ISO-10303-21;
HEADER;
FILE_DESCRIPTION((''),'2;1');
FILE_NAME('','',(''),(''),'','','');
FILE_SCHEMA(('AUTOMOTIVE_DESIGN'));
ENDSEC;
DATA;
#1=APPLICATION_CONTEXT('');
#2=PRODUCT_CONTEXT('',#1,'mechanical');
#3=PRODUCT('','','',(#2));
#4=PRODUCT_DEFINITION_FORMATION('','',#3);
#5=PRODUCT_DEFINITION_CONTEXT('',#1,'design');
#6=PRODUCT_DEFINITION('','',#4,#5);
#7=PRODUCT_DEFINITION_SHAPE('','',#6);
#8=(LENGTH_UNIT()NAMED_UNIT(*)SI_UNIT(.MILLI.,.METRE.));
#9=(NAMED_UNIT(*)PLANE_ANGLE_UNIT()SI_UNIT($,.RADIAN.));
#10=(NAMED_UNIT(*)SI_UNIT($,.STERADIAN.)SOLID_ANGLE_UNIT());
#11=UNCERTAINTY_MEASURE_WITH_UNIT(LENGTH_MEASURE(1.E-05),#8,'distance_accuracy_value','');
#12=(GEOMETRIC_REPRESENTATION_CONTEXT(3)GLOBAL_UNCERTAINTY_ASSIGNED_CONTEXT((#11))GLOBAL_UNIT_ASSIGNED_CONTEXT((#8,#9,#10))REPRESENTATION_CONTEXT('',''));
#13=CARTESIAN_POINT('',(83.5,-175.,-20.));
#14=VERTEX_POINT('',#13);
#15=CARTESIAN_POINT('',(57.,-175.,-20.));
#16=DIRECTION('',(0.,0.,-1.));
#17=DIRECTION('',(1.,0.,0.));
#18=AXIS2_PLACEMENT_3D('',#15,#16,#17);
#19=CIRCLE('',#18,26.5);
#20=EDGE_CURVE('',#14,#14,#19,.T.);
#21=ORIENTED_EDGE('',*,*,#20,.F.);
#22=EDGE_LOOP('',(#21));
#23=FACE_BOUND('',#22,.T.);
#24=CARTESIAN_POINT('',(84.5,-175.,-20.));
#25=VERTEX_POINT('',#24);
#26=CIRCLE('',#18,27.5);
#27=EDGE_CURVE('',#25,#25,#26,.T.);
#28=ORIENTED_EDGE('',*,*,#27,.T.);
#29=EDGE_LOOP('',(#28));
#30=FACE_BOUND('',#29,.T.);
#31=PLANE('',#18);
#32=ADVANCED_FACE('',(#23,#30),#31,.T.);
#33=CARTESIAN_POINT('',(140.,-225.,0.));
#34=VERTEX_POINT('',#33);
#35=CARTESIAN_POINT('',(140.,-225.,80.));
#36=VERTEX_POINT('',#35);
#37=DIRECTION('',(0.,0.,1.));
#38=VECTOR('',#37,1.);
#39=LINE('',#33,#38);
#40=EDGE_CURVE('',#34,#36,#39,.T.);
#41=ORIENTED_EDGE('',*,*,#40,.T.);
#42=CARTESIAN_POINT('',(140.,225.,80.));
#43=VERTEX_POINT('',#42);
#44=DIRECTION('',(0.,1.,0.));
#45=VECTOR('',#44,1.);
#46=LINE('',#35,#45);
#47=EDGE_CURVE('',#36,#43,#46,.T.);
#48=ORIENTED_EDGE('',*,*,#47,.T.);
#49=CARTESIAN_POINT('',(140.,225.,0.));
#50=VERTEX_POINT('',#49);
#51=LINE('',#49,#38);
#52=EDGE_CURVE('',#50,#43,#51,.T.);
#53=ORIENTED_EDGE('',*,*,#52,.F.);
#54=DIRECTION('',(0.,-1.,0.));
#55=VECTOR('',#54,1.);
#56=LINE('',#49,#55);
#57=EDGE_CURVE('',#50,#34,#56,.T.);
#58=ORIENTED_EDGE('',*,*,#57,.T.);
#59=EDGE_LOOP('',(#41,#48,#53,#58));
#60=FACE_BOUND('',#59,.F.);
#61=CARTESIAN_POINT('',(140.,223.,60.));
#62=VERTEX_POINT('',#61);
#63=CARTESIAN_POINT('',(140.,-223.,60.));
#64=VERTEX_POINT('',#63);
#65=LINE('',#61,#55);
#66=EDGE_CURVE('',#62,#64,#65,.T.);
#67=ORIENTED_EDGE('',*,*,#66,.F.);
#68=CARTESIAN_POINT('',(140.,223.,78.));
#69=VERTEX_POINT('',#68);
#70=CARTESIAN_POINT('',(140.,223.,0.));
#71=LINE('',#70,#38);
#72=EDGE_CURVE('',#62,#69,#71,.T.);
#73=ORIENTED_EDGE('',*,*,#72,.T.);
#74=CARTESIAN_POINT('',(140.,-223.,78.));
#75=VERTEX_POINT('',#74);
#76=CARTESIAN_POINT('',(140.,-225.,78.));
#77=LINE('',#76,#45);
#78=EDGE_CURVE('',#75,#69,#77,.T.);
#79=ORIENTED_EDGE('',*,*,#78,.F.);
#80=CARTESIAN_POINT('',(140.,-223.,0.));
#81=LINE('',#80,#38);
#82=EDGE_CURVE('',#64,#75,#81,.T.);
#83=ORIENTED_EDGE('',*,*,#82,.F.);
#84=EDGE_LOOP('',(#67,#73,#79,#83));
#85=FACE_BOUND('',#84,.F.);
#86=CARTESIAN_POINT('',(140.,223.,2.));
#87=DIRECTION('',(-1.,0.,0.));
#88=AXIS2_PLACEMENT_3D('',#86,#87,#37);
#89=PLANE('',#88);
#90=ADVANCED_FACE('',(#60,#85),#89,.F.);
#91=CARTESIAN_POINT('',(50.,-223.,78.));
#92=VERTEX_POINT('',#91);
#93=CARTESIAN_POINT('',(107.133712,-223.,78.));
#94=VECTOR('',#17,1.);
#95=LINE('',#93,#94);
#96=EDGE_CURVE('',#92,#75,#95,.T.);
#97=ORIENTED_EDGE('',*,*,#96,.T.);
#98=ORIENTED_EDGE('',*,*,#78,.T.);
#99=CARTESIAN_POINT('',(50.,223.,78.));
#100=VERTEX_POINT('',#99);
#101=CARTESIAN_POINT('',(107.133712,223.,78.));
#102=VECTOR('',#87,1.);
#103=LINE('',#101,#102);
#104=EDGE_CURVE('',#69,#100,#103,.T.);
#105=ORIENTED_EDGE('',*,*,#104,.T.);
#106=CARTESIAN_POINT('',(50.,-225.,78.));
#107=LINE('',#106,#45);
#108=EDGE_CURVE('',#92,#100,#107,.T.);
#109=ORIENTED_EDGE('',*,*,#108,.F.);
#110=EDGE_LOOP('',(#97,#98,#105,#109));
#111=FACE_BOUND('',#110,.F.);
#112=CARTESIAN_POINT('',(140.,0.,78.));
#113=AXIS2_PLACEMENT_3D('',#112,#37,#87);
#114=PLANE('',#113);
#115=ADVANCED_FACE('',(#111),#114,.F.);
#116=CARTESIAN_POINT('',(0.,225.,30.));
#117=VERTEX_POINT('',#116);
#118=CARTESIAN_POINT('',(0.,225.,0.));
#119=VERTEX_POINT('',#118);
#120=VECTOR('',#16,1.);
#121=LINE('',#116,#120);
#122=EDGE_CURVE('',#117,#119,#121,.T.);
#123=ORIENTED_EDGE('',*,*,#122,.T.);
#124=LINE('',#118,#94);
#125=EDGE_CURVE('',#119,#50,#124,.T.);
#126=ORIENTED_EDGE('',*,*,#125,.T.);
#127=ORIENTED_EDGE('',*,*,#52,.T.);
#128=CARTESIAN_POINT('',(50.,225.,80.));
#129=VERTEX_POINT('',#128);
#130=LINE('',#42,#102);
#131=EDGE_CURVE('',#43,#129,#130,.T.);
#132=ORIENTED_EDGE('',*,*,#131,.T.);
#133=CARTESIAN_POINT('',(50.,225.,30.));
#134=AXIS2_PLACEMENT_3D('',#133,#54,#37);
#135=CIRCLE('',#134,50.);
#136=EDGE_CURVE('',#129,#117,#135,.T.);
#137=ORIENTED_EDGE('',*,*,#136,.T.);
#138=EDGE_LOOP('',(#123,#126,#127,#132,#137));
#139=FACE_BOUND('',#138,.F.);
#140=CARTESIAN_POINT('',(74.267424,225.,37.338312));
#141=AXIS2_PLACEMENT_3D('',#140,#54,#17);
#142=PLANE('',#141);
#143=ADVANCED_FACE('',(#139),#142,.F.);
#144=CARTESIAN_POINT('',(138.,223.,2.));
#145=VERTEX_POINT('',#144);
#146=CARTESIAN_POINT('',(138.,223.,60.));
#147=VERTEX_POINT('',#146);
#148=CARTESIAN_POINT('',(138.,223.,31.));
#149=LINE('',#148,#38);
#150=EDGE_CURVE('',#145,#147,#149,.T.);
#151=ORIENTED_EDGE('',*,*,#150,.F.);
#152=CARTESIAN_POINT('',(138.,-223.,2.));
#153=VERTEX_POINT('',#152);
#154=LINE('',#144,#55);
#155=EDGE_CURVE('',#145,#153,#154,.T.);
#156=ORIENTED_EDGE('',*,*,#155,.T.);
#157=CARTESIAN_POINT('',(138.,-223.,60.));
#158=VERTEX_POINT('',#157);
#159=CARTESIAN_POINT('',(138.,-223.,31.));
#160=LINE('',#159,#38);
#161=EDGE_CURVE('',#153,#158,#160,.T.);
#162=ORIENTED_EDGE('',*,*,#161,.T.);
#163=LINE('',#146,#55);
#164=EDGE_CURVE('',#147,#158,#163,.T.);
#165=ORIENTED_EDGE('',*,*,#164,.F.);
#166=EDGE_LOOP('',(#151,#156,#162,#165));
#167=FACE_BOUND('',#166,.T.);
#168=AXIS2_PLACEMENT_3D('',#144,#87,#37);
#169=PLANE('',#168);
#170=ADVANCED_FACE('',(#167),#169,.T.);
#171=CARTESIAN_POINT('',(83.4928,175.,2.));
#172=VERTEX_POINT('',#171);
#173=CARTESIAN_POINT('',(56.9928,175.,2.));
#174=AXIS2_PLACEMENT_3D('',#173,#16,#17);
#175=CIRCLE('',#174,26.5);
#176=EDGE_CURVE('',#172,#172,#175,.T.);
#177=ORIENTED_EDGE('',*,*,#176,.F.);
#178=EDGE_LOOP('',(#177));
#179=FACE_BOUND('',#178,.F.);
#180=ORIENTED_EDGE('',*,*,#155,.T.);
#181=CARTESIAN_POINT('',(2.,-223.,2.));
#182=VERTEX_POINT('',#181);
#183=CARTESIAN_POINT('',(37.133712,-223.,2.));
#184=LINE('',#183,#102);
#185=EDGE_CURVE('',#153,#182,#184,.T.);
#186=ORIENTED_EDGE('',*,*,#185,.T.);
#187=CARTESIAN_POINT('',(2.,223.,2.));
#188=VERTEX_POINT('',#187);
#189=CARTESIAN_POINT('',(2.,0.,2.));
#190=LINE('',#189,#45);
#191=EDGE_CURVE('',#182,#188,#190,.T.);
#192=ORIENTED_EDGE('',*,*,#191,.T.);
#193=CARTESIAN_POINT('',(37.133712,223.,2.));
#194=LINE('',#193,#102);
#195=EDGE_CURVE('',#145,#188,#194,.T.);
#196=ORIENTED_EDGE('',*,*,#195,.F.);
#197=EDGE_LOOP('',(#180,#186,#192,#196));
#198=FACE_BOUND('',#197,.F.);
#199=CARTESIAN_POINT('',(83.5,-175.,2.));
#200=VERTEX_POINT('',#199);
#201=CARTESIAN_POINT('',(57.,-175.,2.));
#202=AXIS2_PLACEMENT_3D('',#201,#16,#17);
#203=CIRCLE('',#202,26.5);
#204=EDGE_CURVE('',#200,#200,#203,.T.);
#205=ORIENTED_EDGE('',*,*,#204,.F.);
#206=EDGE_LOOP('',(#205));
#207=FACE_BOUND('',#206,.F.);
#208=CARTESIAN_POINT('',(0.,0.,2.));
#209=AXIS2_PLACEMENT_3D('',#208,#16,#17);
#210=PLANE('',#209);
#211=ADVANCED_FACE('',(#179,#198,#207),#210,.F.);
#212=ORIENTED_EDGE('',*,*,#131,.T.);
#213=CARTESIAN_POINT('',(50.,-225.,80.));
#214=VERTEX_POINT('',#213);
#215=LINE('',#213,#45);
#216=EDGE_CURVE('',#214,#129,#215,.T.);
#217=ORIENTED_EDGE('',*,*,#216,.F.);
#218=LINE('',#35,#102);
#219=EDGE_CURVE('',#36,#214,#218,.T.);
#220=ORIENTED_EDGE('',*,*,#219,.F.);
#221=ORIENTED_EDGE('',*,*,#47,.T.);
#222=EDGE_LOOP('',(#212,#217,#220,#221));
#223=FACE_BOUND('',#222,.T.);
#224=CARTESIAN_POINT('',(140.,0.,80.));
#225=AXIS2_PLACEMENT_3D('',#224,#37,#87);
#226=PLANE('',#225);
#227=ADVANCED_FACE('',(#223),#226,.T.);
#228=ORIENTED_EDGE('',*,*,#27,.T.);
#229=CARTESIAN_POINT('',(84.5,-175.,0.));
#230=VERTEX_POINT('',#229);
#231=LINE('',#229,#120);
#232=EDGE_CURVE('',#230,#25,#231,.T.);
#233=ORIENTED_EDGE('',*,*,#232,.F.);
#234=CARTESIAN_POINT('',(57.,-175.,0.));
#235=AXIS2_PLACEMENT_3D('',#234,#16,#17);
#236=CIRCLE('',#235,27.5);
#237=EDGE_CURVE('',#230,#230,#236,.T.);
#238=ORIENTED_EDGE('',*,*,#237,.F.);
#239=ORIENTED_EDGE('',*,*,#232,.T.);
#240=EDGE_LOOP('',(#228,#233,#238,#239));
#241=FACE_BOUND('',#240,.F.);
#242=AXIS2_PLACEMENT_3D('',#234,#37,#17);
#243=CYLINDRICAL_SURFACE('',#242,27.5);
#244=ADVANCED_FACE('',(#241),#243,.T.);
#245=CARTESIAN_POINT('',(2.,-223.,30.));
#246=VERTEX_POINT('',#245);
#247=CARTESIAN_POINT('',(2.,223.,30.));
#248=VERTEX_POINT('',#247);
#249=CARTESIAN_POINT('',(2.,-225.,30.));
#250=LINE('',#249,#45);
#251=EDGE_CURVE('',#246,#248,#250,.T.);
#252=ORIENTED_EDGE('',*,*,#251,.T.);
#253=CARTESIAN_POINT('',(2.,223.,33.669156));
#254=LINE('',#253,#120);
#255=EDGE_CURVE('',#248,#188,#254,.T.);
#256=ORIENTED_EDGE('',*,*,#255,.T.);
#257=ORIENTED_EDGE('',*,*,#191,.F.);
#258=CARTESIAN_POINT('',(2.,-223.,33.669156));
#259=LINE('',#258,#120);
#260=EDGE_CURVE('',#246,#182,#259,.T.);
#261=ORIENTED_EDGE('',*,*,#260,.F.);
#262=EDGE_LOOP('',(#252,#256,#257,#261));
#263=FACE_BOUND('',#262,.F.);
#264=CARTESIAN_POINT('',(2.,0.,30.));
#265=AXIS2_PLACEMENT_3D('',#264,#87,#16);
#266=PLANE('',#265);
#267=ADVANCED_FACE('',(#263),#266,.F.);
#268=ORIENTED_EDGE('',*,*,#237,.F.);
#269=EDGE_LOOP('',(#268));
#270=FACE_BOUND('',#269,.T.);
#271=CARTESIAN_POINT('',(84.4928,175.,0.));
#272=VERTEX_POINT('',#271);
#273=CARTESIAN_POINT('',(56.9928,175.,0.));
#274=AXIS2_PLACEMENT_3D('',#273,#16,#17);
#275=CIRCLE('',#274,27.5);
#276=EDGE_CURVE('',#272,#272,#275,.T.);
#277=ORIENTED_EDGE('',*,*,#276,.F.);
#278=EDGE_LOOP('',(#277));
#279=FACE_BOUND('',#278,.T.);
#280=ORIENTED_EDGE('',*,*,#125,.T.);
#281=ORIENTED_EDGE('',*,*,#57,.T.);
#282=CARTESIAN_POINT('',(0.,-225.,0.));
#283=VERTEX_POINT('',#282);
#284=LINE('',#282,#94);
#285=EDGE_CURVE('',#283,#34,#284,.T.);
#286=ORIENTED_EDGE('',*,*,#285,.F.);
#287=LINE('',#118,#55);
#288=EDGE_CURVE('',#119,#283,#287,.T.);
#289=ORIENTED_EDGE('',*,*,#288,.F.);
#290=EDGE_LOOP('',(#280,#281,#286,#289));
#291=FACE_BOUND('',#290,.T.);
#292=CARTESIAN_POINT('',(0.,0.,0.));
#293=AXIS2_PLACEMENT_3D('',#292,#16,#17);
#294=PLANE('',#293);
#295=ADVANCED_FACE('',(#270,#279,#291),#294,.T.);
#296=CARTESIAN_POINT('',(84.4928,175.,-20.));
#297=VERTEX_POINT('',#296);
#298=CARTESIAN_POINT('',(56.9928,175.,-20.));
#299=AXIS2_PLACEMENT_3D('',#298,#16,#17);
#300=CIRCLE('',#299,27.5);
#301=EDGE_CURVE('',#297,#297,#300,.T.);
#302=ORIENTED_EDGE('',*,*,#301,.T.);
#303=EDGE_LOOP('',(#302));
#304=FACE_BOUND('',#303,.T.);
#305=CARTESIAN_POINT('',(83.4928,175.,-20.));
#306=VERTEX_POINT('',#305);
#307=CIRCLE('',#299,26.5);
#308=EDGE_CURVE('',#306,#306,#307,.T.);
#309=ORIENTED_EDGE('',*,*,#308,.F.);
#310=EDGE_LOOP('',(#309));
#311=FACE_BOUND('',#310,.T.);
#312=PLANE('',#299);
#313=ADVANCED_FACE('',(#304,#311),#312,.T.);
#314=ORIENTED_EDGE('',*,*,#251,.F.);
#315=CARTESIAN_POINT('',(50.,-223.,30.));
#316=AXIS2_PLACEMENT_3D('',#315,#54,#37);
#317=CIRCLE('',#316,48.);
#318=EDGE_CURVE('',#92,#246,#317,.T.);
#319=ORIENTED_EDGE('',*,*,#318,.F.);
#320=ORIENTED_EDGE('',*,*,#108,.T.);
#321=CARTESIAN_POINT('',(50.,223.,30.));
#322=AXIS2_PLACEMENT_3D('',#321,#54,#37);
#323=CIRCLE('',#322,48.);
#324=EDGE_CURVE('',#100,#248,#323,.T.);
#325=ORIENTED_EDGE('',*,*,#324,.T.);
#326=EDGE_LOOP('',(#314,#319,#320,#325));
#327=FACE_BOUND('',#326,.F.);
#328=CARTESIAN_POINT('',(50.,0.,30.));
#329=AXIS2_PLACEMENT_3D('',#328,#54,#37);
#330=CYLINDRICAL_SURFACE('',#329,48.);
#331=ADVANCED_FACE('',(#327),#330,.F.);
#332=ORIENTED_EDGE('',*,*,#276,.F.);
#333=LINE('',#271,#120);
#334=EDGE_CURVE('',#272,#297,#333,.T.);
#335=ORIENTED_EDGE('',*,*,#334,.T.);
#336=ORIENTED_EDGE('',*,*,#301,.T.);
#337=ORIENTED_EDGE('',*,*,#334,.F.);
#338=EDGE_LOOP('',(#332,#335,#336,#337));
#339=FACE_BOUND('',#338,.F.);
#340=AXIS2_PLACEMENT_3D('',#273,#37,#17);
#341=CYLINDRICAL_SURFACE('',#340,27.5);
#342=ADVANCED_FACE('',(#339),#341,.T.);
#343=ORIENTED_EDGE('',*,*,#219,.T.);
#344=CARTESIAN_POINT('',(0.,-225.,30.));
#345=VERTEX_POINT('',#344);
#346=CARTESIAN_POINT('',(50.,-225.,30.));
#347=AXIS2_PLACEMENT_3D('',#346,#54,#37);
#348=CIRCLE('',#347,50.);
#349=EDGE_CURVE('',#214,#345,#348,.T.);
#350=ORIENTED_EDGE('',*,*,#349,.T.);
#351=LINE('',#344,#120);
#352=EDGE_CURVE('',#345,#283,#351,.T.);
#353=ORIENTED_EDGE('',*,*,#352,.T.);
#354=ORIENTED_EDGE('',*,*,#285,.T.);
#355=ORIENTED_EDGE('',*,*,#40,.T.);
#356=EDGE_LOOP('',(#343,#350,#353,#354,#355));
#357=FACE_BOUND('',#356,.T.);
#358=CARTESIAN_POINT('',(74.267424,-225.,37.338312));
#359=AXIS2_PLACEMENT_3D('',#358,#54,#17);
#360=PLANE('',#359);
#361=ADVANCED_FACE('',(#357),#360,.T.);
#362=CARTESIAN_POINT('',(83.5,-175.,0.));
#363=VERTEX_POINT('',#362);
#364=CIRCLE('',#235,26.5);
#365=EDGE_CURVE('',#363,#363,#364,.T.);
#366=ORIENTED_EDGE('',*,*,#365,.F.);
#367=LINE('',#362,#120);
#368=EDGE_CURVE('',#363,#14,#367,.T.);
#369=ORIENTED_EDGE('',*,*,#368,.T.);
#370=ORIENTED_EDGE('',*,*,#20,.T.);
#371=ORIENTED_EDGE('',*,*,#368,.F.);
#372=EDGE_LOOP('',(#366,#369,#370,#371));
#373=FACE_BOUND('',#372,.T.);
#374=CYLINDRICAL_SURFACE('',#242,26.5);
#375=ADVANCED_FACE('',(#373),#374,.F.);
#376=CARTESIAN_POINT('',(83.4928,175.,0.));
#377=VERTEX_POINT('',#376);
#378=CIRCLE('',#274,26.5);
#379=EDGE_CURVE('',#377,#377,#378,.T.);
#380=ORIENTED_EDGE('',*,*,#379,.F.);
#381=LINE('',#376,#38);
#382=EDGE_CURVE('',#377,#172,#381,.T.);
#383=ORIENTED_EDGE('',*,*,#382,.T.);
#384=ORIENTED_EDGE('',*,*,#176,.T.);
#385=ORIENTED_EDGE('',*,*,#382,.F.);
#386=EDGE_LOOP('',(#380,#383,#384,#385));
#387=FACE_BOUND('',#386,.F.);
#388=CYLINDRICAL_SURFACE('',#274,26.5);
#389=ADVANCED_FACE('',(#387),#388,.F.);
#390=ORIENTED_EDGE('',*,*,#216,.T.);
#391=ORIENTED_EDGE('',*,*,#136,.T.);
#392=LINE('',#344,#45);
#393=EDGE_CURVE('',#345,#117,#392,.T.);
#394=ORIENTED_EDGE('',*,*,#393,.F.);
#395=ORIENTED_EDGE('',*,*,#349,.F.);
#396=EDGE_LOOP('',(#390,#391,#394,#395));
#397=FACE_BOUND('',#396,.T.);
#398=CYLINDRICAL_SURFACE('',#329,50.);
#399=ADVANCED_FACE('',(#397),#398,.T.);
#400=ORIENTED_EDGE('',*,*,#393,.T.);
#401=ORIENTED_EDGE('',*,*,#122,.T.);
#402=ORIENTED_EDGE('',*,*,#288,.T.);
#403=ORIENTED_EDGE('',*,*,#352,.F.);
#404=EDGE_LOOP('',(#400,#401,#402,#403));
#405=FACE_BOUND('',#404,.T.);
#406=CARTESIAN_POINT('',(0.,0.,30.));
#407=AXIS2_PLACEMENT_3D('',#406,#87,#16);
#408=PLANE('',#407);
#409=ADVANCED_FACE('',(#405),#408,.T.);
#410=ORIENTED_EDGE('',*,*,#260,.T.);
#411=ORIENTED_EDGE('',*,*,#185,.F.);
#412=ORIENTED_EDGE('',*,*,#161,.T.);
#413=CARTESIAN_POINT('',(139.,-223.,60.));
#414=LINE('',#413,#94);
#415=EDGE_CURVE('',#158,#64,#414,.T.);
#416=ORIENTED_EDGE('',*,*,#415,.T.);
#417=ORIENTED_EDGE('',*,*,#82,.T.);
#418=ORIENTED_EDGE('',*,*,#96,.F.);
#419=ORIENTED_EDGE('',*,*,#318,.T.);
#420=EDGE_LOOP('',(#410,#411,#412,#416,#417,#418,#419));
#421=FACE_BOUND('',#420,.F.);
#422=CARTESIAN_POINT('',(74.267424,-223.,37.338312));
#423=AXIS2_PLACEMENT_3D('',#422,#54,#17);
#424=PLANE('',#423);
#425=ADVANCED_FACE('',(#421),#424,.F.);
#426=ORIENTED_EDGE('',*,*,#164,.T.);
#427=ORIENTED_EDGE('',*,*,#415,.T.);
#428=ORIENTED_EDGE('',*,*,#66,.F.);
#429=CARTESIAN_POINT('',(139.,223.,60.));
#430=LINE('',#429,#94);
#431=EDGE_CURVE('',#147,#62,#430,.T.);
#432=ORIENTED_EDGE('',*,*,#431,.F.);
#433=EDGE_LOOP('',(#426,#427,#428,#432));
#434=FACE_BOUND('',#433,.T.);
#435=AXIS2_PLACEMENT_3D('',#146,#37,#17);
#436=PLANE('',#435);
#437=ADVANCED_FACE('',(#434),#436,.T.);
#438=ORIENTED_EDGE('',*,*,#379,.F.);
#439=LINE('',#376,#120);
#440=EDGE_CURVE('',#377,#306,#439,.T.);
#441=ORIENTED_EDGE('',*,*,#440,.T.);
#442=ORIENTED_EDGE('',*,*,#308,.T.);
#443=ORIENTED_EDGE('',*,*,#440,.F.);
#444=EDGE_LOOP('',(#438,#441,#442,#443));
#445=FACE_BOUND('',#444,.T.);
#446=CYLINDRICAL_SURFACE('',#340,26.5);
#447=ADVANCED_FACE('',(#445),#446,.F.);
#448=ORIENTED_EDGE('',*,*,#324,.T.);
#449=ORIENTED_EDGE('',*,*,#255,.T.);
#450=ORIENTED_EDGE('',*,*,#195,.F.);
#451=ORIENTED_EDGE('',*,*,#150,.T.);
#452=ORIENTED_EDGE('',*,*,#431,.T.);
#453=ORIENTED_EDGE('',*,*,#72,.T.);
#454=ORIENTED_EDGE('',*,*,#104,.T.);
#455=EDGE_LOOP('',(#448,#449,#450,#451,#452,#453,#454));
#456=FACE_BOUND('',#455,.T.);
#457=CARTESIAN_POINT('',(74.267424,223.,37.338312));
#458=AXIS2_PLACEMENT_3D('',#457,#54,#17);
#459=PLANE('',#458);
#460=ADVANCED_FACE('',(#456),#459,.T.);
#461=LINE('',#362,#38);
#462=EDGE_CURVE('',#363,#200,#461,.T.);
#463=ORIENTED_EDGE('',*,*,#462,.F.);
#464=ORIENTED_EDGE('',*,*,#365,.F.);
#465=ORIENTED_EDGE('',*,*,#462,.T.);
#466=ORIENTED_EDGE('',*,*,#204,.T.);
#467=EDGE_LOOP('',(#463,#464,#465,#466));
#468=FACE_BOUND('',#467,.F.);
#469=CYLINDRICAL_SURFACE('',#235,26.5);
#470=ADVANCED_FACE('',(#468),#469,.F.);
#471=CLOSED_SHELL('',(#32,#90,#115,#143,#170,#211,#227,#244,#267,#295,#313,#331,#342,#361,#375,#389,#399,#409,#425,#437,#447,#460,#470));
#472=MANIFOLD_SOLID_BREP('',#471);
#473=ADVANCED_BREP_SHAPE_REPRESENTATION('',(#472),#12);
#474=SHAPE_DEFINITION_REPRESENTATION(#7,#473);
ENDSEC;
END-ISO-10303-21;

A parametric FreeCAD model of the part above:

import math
import FreeCAD as App
import Part
import Sketcher


def faces_at(feature, points):
    """Names of the faces that lie closest to the given points."""
    faces = feature.Shape.Faces
    near = lambda p: min(range(len(faces)), key=lambda i: faces[i].distToShape(Part.Vertex(*p))[0])
    return sorted({f"Face{near(p) + 1}" for p in points})


def add_polygon(sketch, points):
    """Adds a closed chain of lines whose ends are joined by coincident constraints."""
    first, n = sketch.GeometryCount, len(points)
    for a, b in zip(points, points[1:] + points[:1]):
        sketch.addGeometry(Part.LineSegment(App.Vector(*a, 0), App.Vector(*b, 0)), False)
    for i in range(n):
        sketch.addConstraint(Sketcher.Constraint("Coincident", first + i, 2, first + (i + 1) % n, 1))

doc = App.newDocument("Part")
body = doc.addObject("PartDesign::Body", "Body")

# Sketch on XZ plane
sketch1 = body.newObject("Sketcher::SketchObject", "Sketch")
sketch1.AttachmentSupport = (doc.getObject("XZ_Plane"), [""])
sketch1.MapMode = "FlatFace"
sketch1.addGeometry([
    Part.LineSegment(App.Vector(0, 30, 0), App.Vector(0, 0, 0)),  # 0
    Part.LineSegment(App.Vector(0, 0, 0), App.Vector(140, 0, 0)),  # 1
    Part.LineSegment(App.Vector(140, 0, 0), App.Vector(140, 80, 0)),  # 2
    Part.LineSegment(App.Vector(140, 80, 0), App.Vector(50, 80, 0)),  # 3
    Part.ArcOfCircle(Part.Circle(App.Vector(50, 30, 0), App.Vector(0, 0, 1), 50), math.radians(90), math.radians(180)),  # 4
], False)
sketch1.addConstraint([
    Sketcher.Constraint("Coincident", 0, 2, 1, 1),
    Sketcher.Constraint("Coincident", 1, 2, 2, 1),
    Sketcher.Constraint("Coincident", 2, 2, 3, 1),
    Sketcher.Constraint("Tangent", 3, 2, 4, 1),
    Sketcher.Constraint("Tangent", 4, 2, 0, 1),
    Sketcher.Constraint("Vertical", 0),
    Sketcher.Constraint("Horizontal", 1),
    Sketcher.Constraint("Vertical", 2),
    Sketcher.Constraint("Horizontal", 3),
    Sketcher.Constraint("Coincident", 0, 2, -1, 1),
    Sketcher.Constraint("Radius", 4, 50.0),
    Sketcher.Constraint("DistanceX", 1, 1, 1, 2, 140.0),
    Sketcher.Constraint("DistanceY", 0, 2, 0, 1, 30.0),
])
pad1 = body.newObject("PartDesign::Pad", "Pad")
pad1.Profile = sketch1
pad1.Length = 450
pad1.Midplane = True
doc.recompute()

thickness = body.newObject("PartDesign::Thickness", "Thickness")
thickness.Base = (pad1, faces_at(pad1, [(140, 0, 40)]))
thickness.Value = 2
thickness.Reversed = True
thickness.Join = "Arc"

# Sketch on XZ plane
sketch2 = body.newObject("Sketcher::SketchObject", "Sketch001")
sketch2.AttachmentSupport = (doc.getObject("XZ_Plane"), [""])
sketch2.MapMode = "FlatFace"
sketch2.AttachmentOffset = App.Placement(App.Vector(0, 0, -223), App.Rotation())
add_polygon(sketch2, [(138, 60), (138, 2), (140, 2), (140, 60)])  # lines 0-3
sketch2.addConstraint([
    Sketcher.Constraint("Vertical", 0),
    Sketcher.Constraint("Horizontal", 1),
    Sketcher.Constraint("Vertical", 2),
    Sketcher.Constraint("Horizontal", 3),
    Sketcher.Constraint("DistanceX", 1, 1, 1, 2, 2.0),
    Sketcher.Constraint("DistanceY", 0, 2, 0, 1, 58.0),
    Sketcher.Constraint("DistanceX", -1, 1, 0, 2, 138.0),
    Sketcher.Constraint("DistanceY", -1, 1, 0, 2, 2.0),
])
pad2 = body.newObject("PartDesign::Pad", "Pad001")
pad2.Profile = sketch2
pad2.Type = "UpToLast"

# Sketch on XY plane
sketch3 = body.newObject("Sketcher::SketchObject", "Sketch002")
sketch3.AttachmentSupport = (doc.getObject("XY_Plane"), [""])
sketch3.MapMode = "FlatFace"
sketch3.addGeometry([
    Part.Circle(App.Vector(57, -175, 0), App.Vector(0, 0, 1), 26),
    Part.Circle(App.Vector(57, 175, 0), App.Vector(0, 0, 1), 26),
], False)
sketch3.addConstraint([
    Sketcher.Constraint("Equal", 0, 1),
    Sketcher.Constraint("Diameter", 0, 53.0),
    Sketcher.Constraint("DistanceX", -1, 1, 0, 3, 57.0),
    Sketcher.Constraint("DistanceY", 0, 3, -1, 1, 175.0),
    Sketcher.Constraint("DistanceY", -1, 1, 1, 3, 175.0),
    Sketcher.Constraint("DistanceX", -1, 1, 1, 3, 56.9928),
])
pocket1 = body.newObject("PartDesign::Pocket", "Pocket")
pocket1.Profile = sketch3
pocket1.Length = 25.4
pocket1.Reversed = True

# Sketch on XY plane
sketch4 = body.newObject("Sketcher::SketchObject", "Sketch003")
sketch4.AttachmentSupport = (doc.getObject("XY_Plane"), [""])
sketch4.MapMode = "FlatFace"
sketch4.addGeometry([
    Part.Circle(App.Vector(57, -175, 0), App.Vector(0, 0, 1), 28),
    Part.Circle(App.Vector(57, -175, 0), App.Vector(0, 0, 1), 26),
    Part.Circle(App.Vector(57, 175, 0), App.Vector(0, 0, 1), 28),
    Part.Circle(App.Vector(57, 175, 0), App.Vector(0, 0, 1), 26),
], False)
sketch4.addConstraint([
    Sketcher.Constraint("Coincident", 1, 3, 0, 3),
    Sketcher.Constraint("Coincident", 3, 3, 2, 3),
    Sketcher.Constraint("Equal", 0, 2),
    Sketcher.Constraint("Equal", 1, 3),
    Sketcher.Constraint("Diameter", 0, 55.0),
    Sketcher.Constraint("Diameter", 1, 53.0),
    Sketcher.Constraint("DistanceX", -1, 1, 0, 3, 57.0),
    Sketcher.Constraint("DistanceY", 0, 3, -1, 1, 175.0),
    Sketcher.Constraint("DistanceY", -1, 1, 2, 3, 175.0),
    Sketcher.Constraint("DistanceX", -1, 1, 2, 3, 56.9928),
])
pad3 = body.newObject("PartDesign::Pad", "Pad002")
pad3.Profile = sketch4
pad3.Length = 20
pad3.Reversed = True

doc.recompute()
